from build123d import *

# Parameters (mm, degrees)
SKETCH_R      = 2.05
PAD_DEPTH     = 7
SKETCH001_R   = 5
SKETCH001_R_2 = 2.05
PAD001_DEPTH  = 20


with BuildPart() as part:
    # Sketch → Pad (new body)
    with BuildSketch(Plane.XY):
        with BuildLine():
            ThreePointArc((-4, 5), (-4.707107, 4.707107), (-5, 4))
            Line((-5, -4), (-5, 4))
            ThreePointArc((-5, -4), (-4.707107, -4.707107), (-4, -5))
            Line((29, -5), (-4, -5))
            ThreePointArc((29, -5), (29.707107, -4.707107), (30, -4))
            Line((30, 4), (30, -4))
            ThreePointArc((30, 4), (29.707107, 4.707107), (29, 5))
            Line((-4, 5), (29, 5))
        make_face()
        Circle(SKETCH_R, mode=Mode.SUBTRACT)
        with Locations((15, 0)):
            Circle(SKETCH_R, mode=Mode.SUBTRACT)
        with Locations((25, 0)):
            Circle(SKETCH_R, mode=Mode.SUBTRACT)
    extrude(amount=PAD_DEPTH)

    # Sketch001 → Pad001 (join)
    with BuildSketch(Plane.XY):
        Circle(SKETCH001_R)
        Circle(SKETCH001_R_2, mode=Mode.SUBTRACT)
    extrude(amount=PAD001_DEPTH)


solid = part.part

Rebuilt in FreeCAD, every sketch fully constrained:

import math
import FreeCAD as App
import Part
import Sketcher
from FreeCAD import Vector
Q = App.Units.Quantity

doc = App.newDocument("Part")
body = doc.addObject("PartDesign::Body", "Body")

sketch1 = doc.addObject("Sketcher::SketchObject", "Sketch")
body.addObject(sketch1)
sketch1.AttachmentSupport = (doc.XY_Plane, [""])
sketch1.MapMode = "FlatFace"
sketch1.addGeometry([
    Part.ArcOfCircle(Part.Circle(Vector(-4, 4, 0), Vector(0, 0, 1), 1), math.radians(90), math.radians(180)),
    Part.LineSegment(Vector(-5, 4, 0), Vector(-5, -4, 0)),
    Part.ArcOfCircle(Part.Circle(Vector(-4, -4, 0), Vector(0, 0, 1), 1), math.radians(180), math.radians(270)),
    Part.LineSegment(Vector(-4, -5, 0), Vector(29, -5, 0)),
    Part.ArcOfCircle(Part.Circle(Vector(29, -4, 0), Vector(0, 0, 1), 1), math.radians(-90), math.radians(0)),
    Part.LineSegment(Vector(30, -4, 0), Vector(30, 4, 0)),
    Part.ArcOfCircle(Part.Circle(Vector(29, 4, 0), Vector(0, 0, 1), 1), math.radians(0), math.radians(90)),
    Part.LineSegment(Vector(29, 5, 0), Vector(-4, 5, 0)),
    Part.Circle(Vector(0, 0, 0), Vector(0, 0, 1), 2),
    Part.Circle(Vector(15, 0, 0), Vector(0, 0, 1), 2),
    Part.Circle(Vector(25, 0, 0), Vector(0, 0, 1), 2),
], False)
sketch1.addConstraint([
    Sketcher.Constraint("Tangent", 0, 2, 1, 1),
    Sketcher.Constraint("Tangent", 1, 2, 2, 1),
    Sketcher.Constraint("Tangent", 2, 2, 3, 1),
    Sketcher.Constraint("Tangent", 3, 2, 4, 1),
    Sketcher.Constraint("Tangent", 4, 2, 5, 1),
    Sketcher.Constraint("Tangent", 5, 2, 6, 1),
    Sketcher.Constraint("Tangent", 6, 2, 7, 1),
    Sketcher.Constraint("Tangent", 7, 2, 0, 1),
    Sketcher.Constraint("Vertical", 1),
    Sketcher.Constraint("Horizontal", 3),
    Sketcher.Constraint("Vertical", 5),
    Sketcher.Constraint("Horizontal", 7),
    Sketcher.Constraint("Coincident", 8, 3, -1, 1),
    Sketcher.Constraint("Equal", 0, 2),
    Sketcher.Constraint("Equal", 2, 4),
    Sketcher.Constraint("Equal", 4, 6),
    Sketcher.Constraint("Equal", 8, 9),
    Sketcher.Constraint("Equal", 9, 10),
    Sketcher.Constraint("PointOnObject", 9, 3, -1),
    Sketcher.Constraint("PointOnObject", 10, 3, -1),
    Sketcher.Constraint("Radius", 0, Q("0.999999 mm")),
    Sketcher.Constraint("Diameter", 8, Q("4.1 mm")),
    Sketcher.Constraint("DistanceX", 3, 1, 3, 2, Q("33 mm")),
    Sketcher.Constraint("DistanceY", 1, 2, 1, 1, Q("8 mm")),
    Sketcher.Constraint("DistanceX", 0, 3, -1, 1, Q("4.000001 mm")),
    Sketcher.Constraint("DistanceY", -1, 1, 0, 3, Q("4.000001 mm")),
    Sketcher.Constraint("DistanceX", -1, 1, 9, 3, Q("15 mm")),
    Sketcher.Constraint("DistanceX", -1, 1, 10, 3, Q("25 mm")),
])
pad1 = doc.addObject("PartDesign::Pad", "Pad")
body.addObject(pad1)
pad1.Profile = sketch1
pad1.Length = 7

sketch2 = doc.addObject("Sketcher::SketchObject", "Sketch001")
body.addObject(sketch2)
sketch2.AttachmentSupport = (doc.XY_Plane, [""])
sketch2.MapMode = "FlatFace"
sketch2.addGeometry([
    Part.Circle(Vector(0, 0, 0), Vector(0, 0, 1), 5),
    Part.Circle(Vector(0, 0, 0), Vector(0, 0, 1), 2),
], False)
sketch2.addConstraint([
    Sketcher.Constraint("Coincident", 0, 3, -1, 1),
    Sketcher.Constraint("Coincident", 1, 3, -1, 1),
    Sketcher.Constraint("Diameter", 0, Q("10 mm")),
    Sketcher.Constraint("Diameter", 1, Q("4.1 mm")),
])
pad2 = doc.addObject("PartDesign::Pad", "Pad001")
body.addObject(pad2)
pad2.Profile = sketch2
pad2.Length = 20

doc.recompute()
